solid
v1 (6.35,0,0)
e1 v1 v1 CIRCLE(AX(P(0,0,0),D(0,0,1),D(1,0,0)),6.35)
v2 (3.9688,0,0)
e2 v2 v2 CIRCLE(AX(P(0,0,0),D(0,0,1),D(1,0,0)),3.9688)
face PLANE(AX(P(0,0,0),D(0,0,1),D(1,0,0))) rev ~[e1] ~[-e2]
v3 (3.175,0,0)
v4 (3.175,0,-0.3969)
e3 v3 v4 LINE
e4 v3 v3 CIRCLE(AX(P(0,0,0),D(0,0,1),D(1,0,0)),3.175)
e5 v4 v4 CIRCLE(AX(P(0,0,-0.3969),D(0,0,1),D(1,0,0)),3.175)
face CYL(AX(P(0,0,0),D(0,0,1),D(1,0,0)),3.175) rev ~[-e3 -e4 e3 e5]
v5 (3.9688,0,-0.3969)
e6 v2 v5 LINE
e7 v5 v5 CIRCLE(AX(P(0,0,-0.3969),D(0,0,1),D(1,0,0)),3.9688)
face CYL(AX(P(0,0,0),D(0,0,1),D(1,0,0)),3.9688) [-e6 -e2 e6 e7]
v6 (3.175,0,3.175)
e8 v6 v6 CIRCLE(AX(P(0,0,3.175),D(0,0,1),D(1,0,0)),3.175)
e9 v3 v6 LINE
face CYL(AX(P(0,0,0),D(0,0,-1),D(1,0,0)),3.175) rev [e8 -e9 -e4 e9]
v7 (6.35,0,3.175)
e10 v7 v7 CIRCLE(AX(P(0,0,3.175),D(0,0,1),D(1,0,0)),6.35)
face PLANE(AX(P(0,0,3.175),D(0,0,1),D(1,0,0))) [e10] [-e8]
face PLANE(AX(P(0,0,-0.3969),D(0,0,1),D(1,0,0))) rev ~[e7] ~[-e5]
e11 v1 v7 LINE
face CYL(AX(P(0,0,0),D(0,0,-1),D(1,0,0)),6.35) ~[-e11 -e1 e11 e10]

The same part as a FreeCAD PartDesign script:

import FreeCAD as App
import Part
import Sketcher

V = App.Vector
Q = App.Units.Quantity

doc = App.newDocument("Part")
body = doc.addObject("PartDesign::Body", "Body")

# Sketch on XY plane
sketch1 = body.newObject("Sketcher::SketchObject", "Sketch")
sketch1.AttachmentSupport = (doc.getObject("XY_Plane"), [""])
sketch1.MapMode = "FlatFace"
sketch1.addGeometry(Part.Circle(V(0, 0, 0), V(0, 0, 1), 6.3), False)
sketch1.addGeometry(Part.Circle(V(0, 0, 0), V(0, 0, 1), 3.2), False)
sketch1.addConstraint(Sketcher.Constraint("Coincident", 0, 3, -1, 1))
sketch1.addConstraint(Sketcher.Constraint("Coincident", 1, 3, -1, 1))
sketch1.addConstraint(Sketcher.Constraint("Diameter", 0, Q("0.5 in")))
sketch1.addConstraint(Sketcher.Constraint("Diameter", 1, Q("0.25 in")))
pad1 = body.newObject("PartDesign::Pad", "Pad")
pad1.Profile = sketch1
pad1.Length = Q("0.125 in")

# Sketch on XY plane
sketch2 = body.newObject("Sketcher::SketchObject", "Sketch001")
sketch2.AttachmentSupport = (doc.getObject("XY_Plane"), [""])
sketch2.MapMode = "FlatFace"
sketch2.addGeometry(Part.Circle(V(0, 0, 0), V(0, 0, 1), 4), False)
sketch2.addGeometry(Part.Circle(V(0, 0, 0), V(0, 0, 1), 3.2), False)
sketch2.addConstraint(Sketcher.Constraint("Coincident", 0, 3, -1, 1))
sketch2.addConstraint(Sketcher.Constraint("Coincident", 1, 3, -1, 1))
sketch2.addConstraint(Sketcher.Constraint("Diameter", 1, Q("0.25 in")))
sketch2.addConstraint(Sketcher.Constraint("Diameter", 0, Q("0.3125 in")))
pad2 = body.newObject("PartDesign::Pad", "Pad001")
pad2.Profile = sketch2
pad2.Length = Q("0.015626 in")
pad2.Reversed = True

doc.recompute()
